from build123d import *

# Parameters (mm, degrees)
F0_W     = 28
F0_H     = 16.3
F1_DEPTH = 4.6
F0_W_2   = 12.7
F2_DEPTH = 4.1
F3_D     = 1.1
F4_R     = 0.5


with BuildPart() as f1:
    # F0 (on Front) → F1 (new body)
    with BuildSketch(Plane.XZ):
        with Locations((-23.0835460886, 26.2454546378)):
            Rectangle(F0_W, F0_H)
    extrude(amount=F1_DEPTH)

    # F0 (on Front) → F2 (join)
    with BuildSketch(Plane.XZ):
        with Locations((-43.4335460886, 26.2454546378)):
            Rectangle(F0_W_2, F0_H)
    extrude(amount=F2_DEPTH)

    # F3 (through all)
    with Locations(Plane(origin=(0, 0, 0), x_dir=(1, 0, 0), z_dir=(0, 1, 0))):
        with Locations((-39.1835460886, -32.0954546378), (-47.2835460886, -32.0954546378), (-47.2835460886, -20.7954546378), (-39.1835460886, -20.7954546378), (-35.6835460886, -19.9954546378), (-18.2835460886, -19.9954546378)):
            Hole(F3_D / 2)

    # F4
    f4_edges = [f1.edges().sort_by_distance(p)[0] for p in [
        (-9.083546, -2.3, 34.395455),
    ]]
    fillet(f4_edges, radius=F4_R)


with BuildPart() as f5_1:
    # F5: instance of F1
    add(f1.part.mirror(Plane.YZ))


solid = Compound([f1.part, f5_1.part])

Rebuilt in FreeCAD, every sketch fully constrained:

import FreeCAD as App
import Part
import Sketcher


def edges_at(feature, points):
    """Names of the edges that pass closest to the given points."""
    edges = feature.Shape.Edges
    near = lambda p: min(range(len(edges)), key=lambda i: edges[i].distToShape(Part.Vertex(*p))[0])
    return sorted({f"Edge{near(p) + 1}" for p in points})


def add_polygon(sketch, points):
    """Adds a closed chain of lines whose ends are joined by coincident constraints."""
    first, n = sketch.GeometryCount, len(points)
    for a, b in zip(points, points[1:] + points[:1]):
        sketch.addGeometry(Part.LineSegment(App.Vector(*a, 0), App.Vector(*b, 0)), False)
    for i in range(n):
        sketch.addConstraint(Sketcher.Constraint("Coincident", first + i, 2, first + (i + 1) % n, 1))

doc = App.newDocument("Part")
params = doc.addObject("Spreadsheet::Sheet", "Params")
for row, (alias, value) in enumerate([
    ("sketch1_width", "28 mm"),
    ("sketch1_height", "16.3 mm"),
    ("pad1_length", "4.6 mm"),
    ("sketch2_width", "12.7 mm"),
    ("sketch2_height", "16.3 mm"),
    ("pad2_length", "4.1 mm"),
    ("sketch3_diameter", "1.1 mm"),
    ("hole_diameter", "1.1 mm"),
    ("fillet_radius", "0.5 mm"),
], start=1):
    params.set(f"A{row}", alias)
    params.set(f"B{row}", "=" + value)
    params.setAlias(f"B{row}", alias)

body = doc.addObject("PartDesign::Body", "Body")

# Sketch on XZ plane
sketch1 = body.newObject("Sketcher::SketchObject", "Sketch")
sketch1.AttachmentSupport = (doc.getObject("XZ_Plane"), [""])
sketch1.MapMode = "FlatFace"
add_polygon(sketch1, [(-37.083546, 34.395455), (-37.083546, 18.095455), (-9.083546, 18.095455), (-9.083546, 34.395455)])  # lines 0-3
sketch1.addConstraint([
    Sketcher.Constraint("Vertical", 0),
    Sketcher.Constraint("Horizontal", 1),
    Sketcher.Constraint("Vertical", 2),
    Sketcher.Constraint("Horizontal", 3),
    Sketcher.Constraint("DistanceX", 1, 1, 1, 2, 28.0),
    Sketcher.Constraint("DistanceY", 0, 2, 0, 1, 16.3),
    Sketcher.Constraint("DistanceX", 0, 2, -1, 1, 37.083546),
    Sketcher.Constraint("DistanceY", -1, 1, 0, 2, 18.095455),
])
sketch1.setExpression("Constraints[8]", "Params.sketch1_width")
sketch1.setExpression("Constraints[9]", "Params.sketch1_height")
pad1 = body.newObject("PartDesign::Pad", "Pad")
pad1.Profile = sketch1
pad1.setExpression("Length", "Params.pad1_length")

# Sketch on XZ plane
sketch2 = body.newObject("Sketcher::SketchObject", "Sketch001")
sketch2.AttachmentSupport = (doc.getObject("XZ_Plane"), [""])
sketch2.MapMode = "FlatFace"
add_polygon(sketch2, [(-49.783546, 34.395455), (-49.783546, 18.095455), (-37.083546, 18.095455), (-37.083546, 34.395455)])  # lines 0-3
sketch2.addConstraint([
    Sketcher.Constraint("Vertical", 0),
    Sketcher.Constraint("Horizontal", 1),
    Sketcher.Constraint("Vertical", 2),
    Sketcher.Constraint("Horizontal", 3),
    Sketcher.Constraint("DistanceX", 1, 1, 1, 2, 12.7),
    Sketcher.Constraint("DistanceY", 0, 2, 0, 1, 16.3),
    Sketcher.Constraint("DistanceX", 0, 2, -1, 1, 49.783546),
    Sketcher.Constraint("DistanceY", -1, 1, 0, 2, 18.095455),
])
sketch2.setExpression("Constraints[8]", "Params.sketch2_width")
sketch2.setExpression("Constraints[9]", "Params.sketch2_height")
pad2 = body.newObject("PartDesign::Pad", "Pad001")
pad2.Profile = sketch2
pad2.setExpression("Length", "Params.pad2_length")

# Sketch on XZ plane
sketch3 = body.newObject("Sketcher::SketchObject", "Sketch002")
sketch3.AttachmentSupport = (doc.getObject("XZ_Plane"), [""])
sketch3.MapMode = "FlatFace"
sketch3.addGeometry([
    Part.Circle(App.Vector(-39.183546, 32.095455, 0), App.Vector(0, 0, 1), 0.55),  # 0
    Part.Circle(App.Vector(-47.283546, 32.095455, 0), App.Vector(0, 0, 1), 0.55),  # 1
    Part.Circle(App.Vector(-47.283546, 20.795455, 0), App.Vector(0, 0, 1), 0.55),  # 2
    Part.Circle(App.Vector(-39.183546, 20.795455, 0), App.Vector(0, 0, 1), 0.55),  # 3
    Part.Circle(App.Vector(-35.683546, 19.995455, 0), App.Vector(0, 0, 1), 0.55),  # 4
    Part.Circle(App.Vector(-18.283546, 19.995455, 0), App.Vector(0, 0, 1), 0.55),  # 5
], False)
sketch3.addConstraint([
    Sketcher.Constraint("Equal", 0, 1),
    Sketcher.Constraint("Equal", 1, 2),
    Sketcher.Constraint("Equal", 2, 3),
    Sketcher.Constraint("Equal", 3, 4),
    Sketcher.Constraint("Equal", 4, 5),
    Sketcher.Constraint("Horizontal", 0, 3, 1, 3),
    Sketcher.Constraint("Horizontal", 2, 3, 3, 3),
    Sketcher.Constraint("Horizontal", 4, 3, 5, 3),
    Sketcher.Constraint("Vertical", 1, 3, 2, 3),
    Sketcher.Constraint("Vertical", 0, 3, 3, 3),
    Sketcher.Constraint("Diameter", 0, 1.1),
    Sketcher.Constraint("DistanceX", 2, 3, 5, 3, 29.0),
    Sketcher.Constraint("DistanceX", 1, 3, 0, 3, 8.1),
    Sketcher.Constraint("DistanceY", 2, 3, 1, 3, 11.3),
    Sketcher.Constraint("DistanceX", 3, 3, 4, 3, 3.5),
    Sketcher.Constraint("DistanceY", 4, 3, 3, 3, 0.8),
    Sketcher.Constraint("DistanceX", 0, 3, -1, 1, 39.183546),
    Sketcher.Constraint("DistanceY", -1, 1, 0, 3, 32.095455),
])
sketch3.setExpression("Constraints[10]", "Params.sketch3_diameter")
doc.recompute()
hole = body.newObject("PartDesign::Hole", "Hole")
hole.Profile = sketch3
hole.ThreadType = "None"
hole.setExpression("Diameter", "Params.hole_diameter")
hole.DepthType = "ThroughAll"
hole.Reversed = True
doc.recompute()

fillet = body.newObject("PartDesign::Fillet", "Fillet")
fillet.Base = (hole, edges_at(hole, [(-9.084, -2.3, 34.395)]))
fillet.setExpression("Radius", "Params.fillet_radius")
body2 = doc.addObject("PartDesign::Body", "Body001")
doc.recompute()

mirroring = doc.addObject("Part::Mirroring", "Mirroring")
mirroring.Source = body
mirroring.Base = App.Vector(0, 0, 0)
mirroring.Normal = App.Vector(1, 0, 0)
body2.BaseFeature = mirroring
doc.recompute()
mirroring.Visibility = False

doc.recompute()
